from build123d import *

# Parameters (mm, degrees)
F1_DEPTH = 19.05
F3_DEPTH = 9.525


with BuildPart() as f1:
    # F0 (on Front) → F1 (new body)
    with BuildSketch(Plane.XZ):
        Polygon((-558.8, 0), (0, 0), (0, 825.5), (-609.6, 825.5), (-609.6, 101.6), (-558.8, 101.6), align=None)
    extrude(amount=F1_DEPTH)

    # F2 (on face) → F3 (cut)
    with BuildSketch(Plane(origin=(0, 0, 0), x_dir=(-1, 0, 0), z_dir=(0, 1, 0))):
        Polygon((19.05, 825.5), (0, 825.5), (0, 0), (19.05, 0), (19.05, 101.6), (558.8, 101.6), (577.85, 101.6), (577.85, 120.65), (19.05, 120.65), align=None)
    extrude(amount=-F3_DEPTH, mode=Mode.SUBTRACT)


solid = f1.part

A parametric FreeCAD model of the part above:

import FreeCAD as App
import Part
import Sketcher
from FreeCAD import Vector
Q = App.Units.Quantity


def add_polygon(sketch, points):
    """Adds a closed chain of lines whose ends are joined by coincident constraints."""
    first, n = sketch.GeometryCount, len(points)
    for a, b in zip(points, points[1:] + points[:1]):
        sketch.addGeometry(Part.LineSegment(App.Vector(*a, 0), App.Vector(*b, 0)), False)
    for i in range(n):
        sketch.addConstraint(Sketcher.Constraint("Coincident", first + i, 2, first + (i + 1) % n, 1))

doc = App.newDocument("Part")
body = doc.addObject("PartDesign::Body", "Body")

# Sketch on XZ plane
sketch1 = body.newObject("Sketcher::SketchObject", "Sketch")
sketch1.AttachmentSupport = (doc.getObject("XZ_Plane"), [""])
sketch1.MapMode = "FlatFace"
add_polygon(sketch1, [(-559, 0), (0, 0), (0, 826), (-610, 826), (-610, 102), (-559, 102)])  # lines 0-5
sketch1.addConstraint([
    Sketcher.Constraint("Horizontal", 0),
    Sketcher.Constraint("Vertical", 1),
    Sketcher.Constraint("Horizontal", 2),
    Sketcher.Constraint("Vertical", 3),
    Sketcher.Constraint("Horizontal", 4),
    Sketcher.Constraint("Vertical", 5),
    Sketcher.Constraint("Coincident", 0, 2, -1, 1),
    Sketcher.Constraint("DistanceX", 0, 1, 0, 2, Q("22 in")),
    Sketcher.Constraint("DistanceX", 2, 2, 2, 1, Q("24 in")),
    Sketcher.Constraint("DistanceY", 5, 2, 5, 1, Q("4 in")),
    Sketcher.Constraint("DistanceY", 1, 1, 1, 2, Q("32.5 in")),
])
pad1 = body.newObject("PartDesign::Pad", "Pad")
pad1.Profile = sketch1
pad1.Length = Q("0.75 in")

# Sketch on XZ plane
sketch2 = body.newObject("Sketcher::SketchObject", "Sketch001")
sketch2.AttachmentSupport = (doc.getObject("XZ_Plane"), [""])
sketch2.MapMode = "FlatFace"
add_polygon(sketch2, [(-19, 826), (0, 826), (0, 0), (-19, 0), (-19, 102), (-578, 102), (-578, 121), (-19, 121)])  # lines 0-7
sketch2.addConstraint([
    Sketcher.Constraint("Horizontal", 0),
    Sketcher.Constraint("Vertical", 1),
    Sketcher.Constraint("Horizontal", 2),
    Sketcher.Constraint("Vertical", 3),
    Sketcher.Constraint("Horizontal", 4),
    Sketcher.Constraint("Vertical", 5),
    Sketcher.Constraint("Horizontal", 6),
    Sketcher.Constraint("Vertical", 7),
    Sketcher.Constraint("Coincident", 1, 2, -1, 1),
    Sketcher.Constraint("Vertical", 3, 2, 6, 2),
    Sketcher.Constraint("Equal", 2, 5),
    Sketcher.Constraint("DistanceX", 4, 2, 4, 1, Q("22 in")),
    Sketcher.Constraint("DistanceY", 3, 1, 3, 2, Q("4 in")),
    Sketcher.Constraint("DistanceY", 1, 2, 1, 1, Q("32.5 in")),
    Sketcher.Constraint("DistanceX", 0, 1, 0, 2, Q("0.75 in")),
])
pocket1 = body.newObject("PartDesign::Pocket", "Pocket")
pocket1.Profile = sketch2
pocket1.Length = Q("0.375 in")
pocket1.Reversed = True

doc.recompute()
